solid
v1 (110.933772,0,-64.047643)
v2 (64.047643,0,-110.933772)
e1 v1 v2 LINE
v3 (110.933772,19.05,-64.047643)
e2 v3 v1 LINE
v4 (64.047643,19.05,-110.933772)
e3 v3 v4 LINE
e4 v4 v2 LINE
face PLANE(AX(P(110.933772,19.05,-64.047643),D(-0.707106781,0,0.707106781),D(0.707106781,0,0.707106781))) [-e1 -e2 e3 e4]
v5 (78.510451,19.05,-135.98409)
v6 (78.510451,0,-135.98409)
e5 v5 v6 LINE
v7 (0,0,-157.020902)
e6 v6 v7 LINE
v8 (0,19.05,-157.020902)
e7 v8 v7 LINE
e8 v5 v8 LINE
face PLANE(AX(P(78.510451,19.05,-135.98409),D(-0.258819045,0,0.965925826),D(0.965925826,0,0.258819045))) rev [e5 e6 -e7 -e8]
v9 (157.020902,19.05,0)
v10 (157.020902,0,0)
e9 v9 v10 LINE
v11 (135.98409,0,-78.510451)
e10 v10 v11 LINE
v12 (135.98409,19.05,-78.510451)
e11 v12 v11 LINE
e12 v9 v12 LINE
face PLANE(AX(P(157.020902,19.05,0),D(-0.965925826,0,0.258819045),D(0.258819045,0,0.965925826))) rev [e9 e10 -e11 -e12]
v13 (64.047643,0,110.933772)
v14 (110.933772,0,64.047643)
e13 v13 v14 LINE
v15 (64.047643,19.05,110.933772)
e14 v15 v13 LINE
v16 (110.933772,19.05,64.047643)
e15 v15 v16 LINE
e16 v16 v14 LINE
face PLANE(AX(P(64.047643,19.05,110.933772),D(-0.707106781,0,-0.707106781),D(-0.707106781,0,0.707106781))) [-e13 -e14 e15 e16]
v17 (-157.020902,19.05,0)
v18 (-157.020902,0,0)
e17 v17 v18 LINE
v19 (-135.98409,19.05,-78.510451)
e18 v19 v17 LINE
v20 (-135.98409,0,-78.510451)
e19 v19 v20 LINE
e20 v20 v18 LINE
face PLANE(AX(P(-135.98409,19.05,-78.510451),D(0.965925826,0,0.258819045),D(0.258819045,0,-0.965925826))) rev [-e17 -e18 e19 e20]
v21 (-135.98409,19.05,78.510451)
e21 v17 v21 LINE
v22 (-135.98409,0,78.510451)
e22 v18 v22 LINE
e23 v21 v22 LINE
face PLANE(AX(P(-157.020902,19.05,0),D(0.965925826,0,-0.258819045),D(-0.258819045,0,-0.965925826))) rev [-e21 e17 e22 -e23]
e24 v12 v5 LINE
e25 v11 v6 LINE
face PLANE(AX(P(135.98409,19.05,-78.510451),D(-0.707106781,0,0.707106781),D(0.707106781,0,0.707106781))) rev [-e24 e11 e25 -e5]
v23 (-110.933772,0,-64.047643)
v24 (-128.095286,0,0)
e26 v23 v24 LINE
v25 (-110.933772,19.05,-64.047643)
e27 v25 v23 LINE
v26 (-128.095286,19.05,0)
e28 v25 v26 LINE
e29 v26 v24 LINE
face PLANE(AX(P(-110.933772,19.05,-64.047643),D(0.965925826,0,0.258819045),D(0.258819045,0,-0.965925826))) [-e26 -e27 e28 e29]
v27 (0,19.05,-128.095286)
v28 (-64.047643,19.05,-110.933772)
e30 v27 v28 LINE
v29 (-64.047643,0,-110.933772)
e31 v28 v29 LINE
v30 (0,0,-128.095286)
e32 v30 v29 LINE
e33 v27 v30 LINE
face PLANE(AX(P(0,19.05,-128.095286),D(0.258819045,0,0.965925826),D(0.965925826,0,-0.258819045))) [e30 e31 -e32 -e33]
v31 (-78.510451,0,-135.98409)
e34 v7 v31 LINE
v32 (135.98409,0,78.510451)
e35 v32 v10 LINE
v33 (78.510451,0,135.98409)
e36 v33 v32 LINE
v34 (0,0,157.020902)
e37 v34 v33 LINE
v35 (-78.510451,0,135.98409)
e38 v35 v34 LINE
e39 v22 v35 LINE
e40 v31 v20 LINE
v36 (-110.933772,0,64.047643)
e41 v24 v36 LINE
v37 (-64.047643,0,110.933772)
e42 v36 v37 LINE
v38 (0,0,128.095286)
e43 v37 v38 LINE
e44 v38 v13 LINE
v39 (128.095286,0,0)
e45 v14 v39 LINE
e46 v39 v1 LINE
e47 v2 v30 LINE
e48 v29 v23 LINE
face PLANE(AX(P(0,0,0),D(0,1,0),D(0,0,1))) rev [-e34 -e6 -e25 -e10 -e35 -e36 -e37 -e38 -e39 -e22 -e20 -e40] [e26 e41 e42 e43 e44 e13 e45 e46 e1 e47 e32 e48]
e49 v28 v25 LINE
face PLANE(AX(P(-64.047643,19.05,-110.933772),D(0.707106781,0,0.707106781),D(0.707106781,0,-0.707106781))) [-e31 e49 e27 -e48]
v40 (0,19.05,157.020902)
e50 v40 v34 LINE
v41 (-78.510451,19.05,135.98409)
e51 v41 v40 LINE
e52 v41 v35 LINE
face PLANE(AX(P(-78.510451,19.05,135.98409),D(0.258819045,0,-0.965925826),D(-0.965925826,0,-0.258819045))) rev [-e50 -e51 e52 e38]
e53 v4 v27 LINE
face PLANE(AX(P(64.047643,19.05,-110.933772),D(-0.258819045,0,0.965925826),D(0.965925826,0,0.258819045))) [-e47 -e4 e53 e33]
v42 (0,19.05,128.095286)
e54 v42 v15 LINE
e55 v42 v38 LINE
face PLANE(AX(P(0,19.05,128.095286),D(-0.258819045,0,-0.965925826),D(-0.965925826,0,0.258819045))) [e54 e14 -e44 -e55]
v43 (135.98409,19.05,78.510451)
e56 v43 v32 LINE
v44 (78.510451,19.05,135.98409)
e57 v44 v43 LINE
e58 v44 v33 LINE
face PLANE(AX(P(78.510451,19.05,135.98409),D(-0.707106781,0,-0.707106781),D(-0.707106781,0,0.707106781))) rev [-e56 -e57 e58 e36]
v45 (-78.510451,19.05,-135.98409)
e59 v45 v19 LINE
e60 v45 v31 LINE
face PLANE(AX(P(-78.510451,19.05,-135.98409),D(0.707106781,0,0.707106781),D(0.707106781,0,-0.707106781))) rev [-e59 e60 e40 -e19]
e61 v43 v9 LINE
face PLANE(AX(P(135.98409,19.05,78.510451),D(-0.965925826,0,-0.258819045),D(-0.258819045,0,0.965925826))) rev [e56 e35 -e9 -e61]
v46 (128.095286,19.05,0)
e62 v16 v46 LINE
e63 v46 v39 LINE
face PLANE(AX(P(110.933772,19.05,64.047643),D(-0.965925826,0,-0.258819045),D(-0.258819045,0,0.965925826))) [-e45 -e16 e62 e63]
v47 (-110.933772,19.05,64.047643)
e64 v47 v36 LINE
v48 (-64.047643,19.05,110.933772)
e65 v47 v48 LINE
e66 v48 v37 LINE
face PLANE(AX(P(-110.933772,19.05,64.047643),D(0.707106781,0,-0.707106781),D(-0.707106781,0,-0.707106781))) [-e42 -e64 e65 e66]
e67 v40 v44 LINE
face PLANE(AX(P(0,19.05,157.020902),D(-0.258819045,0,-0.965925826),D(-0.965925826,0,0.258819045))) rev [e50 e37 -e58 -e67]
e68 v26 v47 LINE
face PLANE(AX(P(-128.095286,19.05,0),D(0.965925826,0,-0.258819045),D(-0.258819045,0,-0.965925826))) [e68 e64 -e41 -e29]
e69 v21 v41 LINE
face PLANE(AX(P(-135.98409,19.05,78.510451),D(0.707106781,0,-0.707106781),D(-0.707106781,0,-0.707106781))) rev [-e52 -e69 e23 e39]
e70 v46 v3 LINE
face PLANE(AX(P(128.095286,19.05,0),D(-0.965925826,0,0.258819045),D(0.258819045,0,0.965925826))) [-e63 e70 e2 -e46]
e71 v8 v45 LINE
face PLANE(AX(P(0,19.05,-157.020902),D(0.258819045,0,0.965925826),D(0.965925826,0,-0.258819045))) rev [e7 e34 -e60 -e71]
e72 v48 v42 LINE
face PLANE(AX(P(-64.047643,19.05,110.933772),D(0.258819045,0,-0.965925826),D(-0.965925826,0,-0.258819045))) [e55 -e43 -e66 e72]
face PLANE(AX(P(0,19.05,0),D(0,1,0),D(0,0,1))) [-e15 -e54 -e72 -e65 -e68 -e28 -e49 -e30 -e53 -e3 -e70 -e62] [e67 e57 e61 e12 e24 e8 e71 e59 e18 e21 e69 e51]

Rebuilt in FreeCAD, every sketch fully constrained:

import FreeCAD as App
import Part
import Sketcher
Q = App.Units.Quantity


def add_polygon(sketch, points):
    """Adds a closed chain of lines whose ends are joined by coincident constraints."""
    first, n = sketch.GeometryCount, len(points)
    for a, b in zip(points, points[1:] + points[:1]):
        sketch.addGeometry(Part.LineSegment(App.Vector(*a, 0), App.Vector(*b, 0)), False)
    for i in range(n):
        sketch.addConstraint(Sketcher.Constraint("Coincident", first + i, 2, first + (i + 1) % n, 1))

doc = App.newDocument("Part")
params = doc.addObject("Spreadsheet::Sheet", "Params")
for row, (alias, value) in enumerate([
    ("sketch1_length", "3.2 in"),
    ("pad1_length", "0.75 in"),
], start=1):
    params.set(f"A{row}", alias)
    params.set(f"B{row}", "=" + value)
    params.setAlias(f"B{row}", alias)

body = doc.addObject("PartDesign::Body", "Body")

# Sketch on XZ plane
sketch1 = doc.addObject("Sketcher::SketchObject", "Sketch")
body.addObject(sketch1)
sketch1.AttachmentSupport = (doc.XZ_Plane, [""])
sketch1.MapMode = "FlatFace"
add_polygon(sketch1, [(-157, 0), (-136, 79), (-79, 136), (0, 157), (79, 136), (136, 79), (157, 0), (136, -79), (79, -136), (0, -157), (-79, -136), (-136, -79)])  # lines 0-11
add_polygon(sketch1, [(-111, 64), (-128, 0), (-111, -64), (-64, -111), (0, -128), (64, -111), (111, -64), (128, 0), (111, 64), (64, 111), (0, 128), (-64, 111)])  # lines 12-23
sketch1.addConstraint([
    Sketcher.Constraint("Symmetric", 0, 2, 6, 2, -1, 1),
    Sketcher.Constraint("Symmetric", 1, 2, 7, 2, -1, 1),
    Sketcher.Constraint("Symmetric", 2, 2, 8, 2, -1, 1),
    Sketcher.Constraint("Symmetric", 3, 2, 9, 2, -1, 1),
    Sketcher.Constraint("Symmetric", 4, 2, 10, 2, -1, 1),
    Sketcher.Constraint("Symmetric", 5, 2, 11, 2, -1, 1),
    Sketcher.Constraint("Symmetric", 12, 2, 18, 2, -1, 1),
    Sketcher.Constraint("Symmetric", 13, 2, 19, 2, -1, 1),
    Sketcher.Constraint("Symmetric", 14, 2, 20, 2, -1, 1),
    Sketcher.Constraint("Symmetric", 15, 2, 21, 2, -1, 1),
    Sketcher.Constraint("Symmetric", 16, 2, 22, 2, -1, 1),
    Sketcher.Constraint("Symmetric", 17, 2, 23, 2, -1, 1),
    Sketcher.Constraint("Symmetric", 1, 2, 3, 2, -2),
    Sketcher.Constraint("Symmetric", 0, 2, 4, 2, -2),
    Sketcher.Constraint("Symmetric", 14, 2, 16, 2, -2),
    Sketcher.Constraint("Symmetric", 13, 2, 17, 2, -2),
    Sketcher.Constraint("PointOnObject", 2, 2, -2),
    Sketcher.Constraint("PointOnObject", 5, 2, -1),
    Sketcher.Constraint("PointOnObject", 12, 2, -1),
    Sketcher.Constraint("PointOnObject", 15, 2, -2),
    Sketcher.Constraint("Perpendicular", 0, 3),
    Sketcher.Constraint("Perpendicular", 1, 4),
    Sketcher.Constraint("Perpendicular", 9, 12),
    Sketcher.Constraint("Parallel", 10, 14),
    Sketcher.Constraint("Perpendicular", 12, 15),
    Sketcher.Constraint("Equal", 0, 1),
    Sketcher.Constraint("Equal", 1, 2),
    Sketcher.Constraint("Equal", 13, 14),
    Sketcher.Constraint("Equal", 14, 15),
    Sketcher.Constraint("Angle", 0, Q("75 deg")),
    Sketcher.Constraint("Distance", 0, Q("3.2 in")),
    Sketcher.Constraint("Distance", 12, 66.306999),
])
sketch1.setExpression("Constraints[54]", "Params.sketch1_length")
pad1 = doc.addObject("PartDesign::Pad", "Pad")
body.addObject(pad1)
pad1.Profile = sketch1
pad1.setExpression("Length", "Params.pad1_length")
pad1.Reversed = True

doc.recompute()
